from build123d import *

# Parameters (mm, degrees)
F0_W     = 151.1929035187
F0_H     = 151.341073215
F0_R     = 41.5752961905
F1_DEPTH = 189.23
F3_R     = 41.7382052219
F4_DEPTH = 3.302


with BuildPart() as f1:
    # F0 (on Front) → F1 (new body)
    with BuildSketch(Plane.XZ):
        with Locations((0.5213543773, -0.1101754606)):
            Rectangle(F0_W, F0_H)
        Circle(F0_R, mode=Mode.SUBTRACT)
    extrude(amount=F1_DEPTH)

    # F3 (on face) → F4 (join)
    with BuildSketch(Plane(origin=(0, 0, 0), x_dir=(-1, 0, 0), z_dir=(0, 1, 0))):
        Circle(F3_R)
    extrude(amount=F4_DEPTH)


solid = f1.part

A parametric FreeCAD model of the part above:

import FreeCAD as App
import Part
import Sketcher
from FreeCAD import Vector
Q = App.Units.Quantity


def add_polygon(sketch, points):
    """Adds a closed chain of lines whose ends are joined by coincident constraints."""
    first, n = sketch.GeometryCount, len(points)
    for a, b in zip(points, points[1:] + points[:1]):
        sketch.addGeometry(Part.LineSegment(App.Vector(*a, 0), App.Vector(*b, 0)), False)
    for i in range(n):
        sketch.addConstraint(Sketcher.Constraint("Coincident", first + i, 2, first + (i + 1) % n, 1))

doc = App.newDocument("Part")
body = doc.addObject("PartDesign::Body", "Body")

# Sketch on XZ plane
sketch1 = doc.addObject("Sketcher::SketchObject", "Sketch")
body.addObject(sketch1)
sketch1.AttachmentSupport = (doc.XZ_Plane, [""])
sketch1.MapMode = "FlatFace"
add_polygon(sketch1, [(-75.075097, 75.560361), (-75.075097, -75.780712), (76.117806, -75.780712), (76.117806, 75.560361)])  # lines 0-3
sketch1.addGeometry(Part.Circle(Vector(0, 0, 0), Vector(0, 0, 1), 41.575296), False)  # 4
sketch1.addConstraint(Sketcher.Constraint("Vertical", 0))
sketch1.addConstraint(Sketcher.Constraint("Horizontal", 1))
sketch1.addConstraint(Sketcher.Constraint("Vertical", 2))
sketch1.addConstraint(Sketcher.Constraint("Horizontal", 3))
sketch1.addConstraint(Sketcher.Constraint("Coincident", 4, 3, -1, 1))
sketch1.addConstraint(Sketcher.Constraint("Diameter", 4, 83.150592))
sketch1.addConstraint(Sketcher.Constraint("DistanceX", 1, 1, 1, 2, 151.192904))
sketch1.addConstraint(Sketcher.Constraint("DistanceY", 0, 2, 0, 1, 151.341073))
sketch1.addConstraint(Sketcher.Constraint("DistanceY", -1, 1, 2, 2, 75.560361))
sketch1.addConstraint(Sketcher.Constraint("DistanceX", 0, 2, -1, 1, 75.075097))
pad1 = doc.addObject("PartDesign::Pad", "Pad")
body.addObject(pad1)
pad1.Profile = sketch1
pad1.Length = Q("7.45 in")

# Sketch on XZ plane
sketch2 = doc.addObject("Sketcher::SketchObject", "Sketch001")
body.addObject(sketch2)
sketch2.AttachmentSupport = (doc.XZ_Plane, [""])
sketch2.MapMode = "FlatFace"
sketch2.addGeometry(Part.Circle(Vector(0, 0, 0), Vector(0, 0, 1), 41.738205), False)
sketch2.addConstraint(Sketcher.Constraint("Coincident", 0, 3, -1, 1))
sketch2.addConstraint(Sketcher.Constraint("Diameter", 0, 83.47641))
pad2 = doc.addObject("PartDesign::Pad", "Pad001")
body.addObject(pad2)
pad2.Profile = sketch2
pad2.Length = Q("0.13 in")
pad2.Reversed = True

doc.recompute()
